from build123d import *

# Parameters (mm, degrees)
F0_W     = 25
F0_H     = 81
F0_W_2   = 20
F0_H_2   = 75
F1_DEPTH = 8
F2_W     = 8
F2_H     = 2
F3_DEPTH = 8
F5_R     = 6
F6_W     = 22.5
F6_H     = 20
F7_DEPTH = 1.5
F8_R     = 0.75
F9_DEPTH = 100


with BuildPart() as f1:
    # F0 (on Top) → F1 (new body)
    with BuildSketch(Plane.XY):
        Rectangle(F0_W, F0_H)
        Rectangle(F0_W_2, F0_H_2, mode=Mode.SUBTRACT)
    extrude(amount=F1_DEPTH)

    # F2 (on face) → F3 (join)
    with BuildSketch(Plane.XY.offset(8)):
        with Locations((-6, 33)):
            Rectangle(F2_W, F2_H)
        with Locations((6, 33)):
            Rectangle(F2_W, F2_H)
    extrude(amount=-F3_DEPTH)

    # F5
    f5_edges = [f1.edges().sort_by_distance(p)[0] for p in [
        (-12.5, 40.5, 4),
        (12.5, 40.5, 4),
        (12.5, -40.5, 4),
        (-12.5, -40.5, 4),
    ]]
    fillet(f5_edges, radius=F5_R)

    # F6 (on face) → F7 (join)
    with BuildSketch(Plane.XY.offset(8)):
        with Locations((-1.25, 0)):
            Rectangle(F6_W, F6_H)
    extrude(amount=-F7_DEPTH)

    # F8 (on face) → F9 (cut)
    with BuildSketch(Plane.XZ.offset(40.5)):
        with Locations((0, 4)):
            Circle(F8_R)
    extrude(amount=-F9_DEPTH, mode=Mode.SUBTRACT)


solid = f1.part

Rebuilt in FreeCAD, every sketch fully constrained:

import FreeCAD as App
import Part
import Sketcher
from FreeCAD import Vector
Q = App.Units.Quantity


def edges_at(feature, points):
    """Names of the edges that pass closest to the given points."""
    edges = feature.Shape.Edges
    near = lambda p: min(range(len(edges)), key=lambda i: edges[i].distToShape(Part.Vertex(*p))[0])
    return sorted({f"Edge{near(p) + 1}" for p in points})


def add_polygon(sketch, points):
    """Adds a closed chain of lines whose ends are joined by coincident constraints."""
    first, n = sketch.GeometryCount, len(points)
    for a, b in zip(points, points[1:] + points[:1]):
        sketch.addGeometry(Part.LineSegment(App.Vector(*a, 0), App.Vector(*b, 0)), False)
    for i in range(n):
        sketch.addConstraint(Sketcher.Constraint("Coincident", first + i, 2, first + (i + 1) % n, 1))

doc = App.newDocument("Part")
body = doc.addObject("PartDesign::Body", "Body")

# Sketch on XY plane
sketch1 = body.newObject("Sketcher::SketchObject", "Sketch")
sketch1.AttachmentSupport = (doc.getObject("XY_Plane"), [""])
sketch1.MapMode = "FlatFace"
add_polygon(sketch1, [(-12, 40), (-12, -40), (12, -40), (12, 40)])  # lines 0-3
add_polygon(sketch1, [(10, -38), (-10, -38), (-10, 38), (10, 38)])  # lines 4-7
sketch1.addConstraint([
    Sketcher.Constraint("Vertical", 0),
    Sketcher.Constraint("Horizontal", 1),
    Sketcher.Constraint("Vertical", 2),
    Sketcher.Constraint("Horizontal", 3),
    Sketcher.Constraint("Horizontal", 4),
    Sketcher.Constraint("Vertical", 5),
    Sketcher.Constraint("Horizontal", 6),
    Sketcher.Constraint("Vertical", 7),
    Sketcher.Constraint("Symmetric", 0, 2, 2, 2, -1, 1),
    Sketcher.Constraint("Symmetric", 4, 2, 6, 2, -1, 1),
    Sketcher.Constraint("DistanceX", 1, 1, 1, 2, Q("25 mm")),
    Sketcher.Constraint("DistanceX", 4, 2, 4, 1, Q("20 mm")),
    Sketcher.Constraint("DistanceY", 0, 2, 0, 1, Q("81 mm")),
    Sketcher.Constraint("DistanceY", 5, 1, 5, 2, Q("75 mm")),
])
pad1 = body.newObject("PartDesign::Pad", "Pad")
pad1.Profile = sketch1
pad1.Length = 8

# Sketch on XY plane
sketch2 = body.newObject("Sketcher::SketchObject", "Sketch001")
sketch2.AttachmentSupport = (doc.getObject("XY_Plane"), [""])
sketch2.MapMode = "FlatFace"
sketch2.AttachmentOffset = App.Placement(Vector(0, 0, 8), App.Rotation())
add_polygon(sketch2, [(-10, 34), (-10, 32), (-2, 32), (-2, 34)])  # lines 0-3
add_polygon(sketch2, [(2, 34), (2, 32), (10, 32), (10, 34)])  # lines 4-7
sketch2.addConstraint([
    Sketcher.Constraint("Vertical", 0),
    Sketcher.Constraint("Horizontal", 1),
    Sketcher.Constraint("Vertical", 2),
    Sketcher.Constraint("Horizontal", 3),
    Sketcher.Constraint("Vertical", 4),
    Sketcher.Constraint("Horizontal", 5),
    Sketcher.Constraint("Vertical", 6),
    Sketcher.Constraint("Horizontal", 7),
    Sketcher.Constraint("Symmetric", 1, 2, 4, 2, -2),
    Sketcher.Constraint("Symmetric", 3, 2, 6, 2, -2),
    Sketcher.Constraint("DistanceX", 1, 1, 1, 2, Q("8 mm")),
    Sketcher.Constraint("DistanceY", 0, 2, 0, 1, Q("2 mm")),
    Sketcher.Constraint("DistanceX", 0, 2, -1, 1, Q("10 mm")),
    Sketcher.Constraint("DistanceY", -1, 1, 0, 2, Q("32 mm")),
])
pad2 = body.newObject("PartDesign::Pad", "Pad001")
pad2.Profile = sketch2
pad2.Length = 8
pad2.Reversed = True
doc.recompute()

fillet = body.newObject("PartDesign::Fillet", "Fillet")
fillet.Base = (pad2, edges_at(pad2, [
    (-12.5, 40.5, 4),
    (12.5, 40.5, 4),
    (12.5, -40.5, 4),
    (-12.5, -40.5, 4),
]))
fillet.Radius = 6

# Sketch on XY plane
sketch3 = body.newObject("Sketcher::SketchObject", "Sketch002")
sketch3.AttachmentSupport = (doc.getObject("XY_Plane"), [""])
sketch3.MapMode = "FlatFace"
sketch3.AttachmentOffset = App.Placement(Vector(0, 0, 8), App.Rotation())
add_polygon(sketch3, [(-12, 10), (-12, -10), (10, -10), (10, 10)])  # lines 0-3
sketch3.addConstraint([
    Sketcher.Constraint("Vertical", 0),
    Sketcher.Constraint("Horizontal", 1),
    Sketcher.Constraint("Vertical", 2),
    Sketcher.Constraint("Horizontal", 3),
    Sketcher.Constraint("DistanceY", 0, 2, 0, 1, Q("20 mm")),
    Sketcher.Constraint("DistanceX", 1, 1, 1, 2, Q("22.5 mm")),
    Sketcher.Constraint("DistanceY", 0, 2, -1, 1, Q("10 mm")),
    Sketcher.Constraint("DistanceX", -1, 1, 1, 2, Q("10 mm")),
])
pad3 = body.newObject("PartDesign::Pad", "Pad002")
pad3.Profile = sketch3
pad3.Length = 1.5
pad3.Reversed = True

# Sketch on XZ plane
sketch4 = body.newObject("Sketcher::SketchObject", "Sketch003")
sketch4.AttachmentSupport = (doc.getObject("XZ_Plane"), [""])
sketch4.MapMode = "FlatFace"
sketch4.AttachmentOffset = App.Placement(Vector(0, 0, 40.5), App.Rotation())
sketch4.addGeometry(Part.Circle(Vector(0, 4, 0), Vector(0, 0, 1), 0.8), False)
sketch4.addConstraint([
    Sketcher.Constraint("PointOnObject", 0, 3, -2),
    Sketcher.Constraint("Diameter", 0, Q("1.5 mm")),
    Sketcher.Constraint("DistanceY", -1, 1, 0, 3, Q("4 mm")),
])
pocket1 = body.newObject("PartDesign::Pocket", "Pocket")
pocket1.Profile = sketch4
pocket1.Length = 100

doc.recompute()
